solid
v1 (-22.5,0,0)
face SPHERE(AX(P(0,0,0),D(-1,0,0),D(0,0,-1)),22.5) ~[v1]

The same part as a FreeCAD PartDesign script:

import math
import FreeCAD as App
import Part
import Sketcher
from FreeCAD import Vector

doc = App.newDocument("Part")
body = doc.addObject("PartDesign::Body", "Body")

sketch1 = body.newObject("Sketcher::SketchObject", "Sketch")
sketch1.AttachmentSupport = (doc.getObject("XZ_Plane"), [""])
sketch1.MapMode = "FlatFace"
sketch1.addGeometry([
    Part.LineSegment(Vector(-22, 0, 0), Vector(22, 0, 0)),
    Part.ArcOfCircle(Part.Circle(Vector(0, 0, 0), Vector(0, 0, 1), 22), math.radians(180), math.radians(360)),
], False)
sketch1.addConstraint([
    Sketcher.Constraint("Coincident", 0, 1, 1, 1),
    Sketcher.Constraint("Coincident", 1, 2, 0, 2),
    Sketcher.Constraint("Horizontal", 0),
    Sketcher.Constraint("Coincident", 1, 3, -1, 1),
    Sketcher.Constraint("PointOnObject", 0, 1, -1),
    Sketcher.Constraint("Radius", 1, 22.5),
])
revolution = body.newObject("PartDesign::Revolution", "Revolution")
revolution.Profile = sketch1
revolution.ReferenceAxis = (sketch1, ["H_Axis"])
revolution.Angle = 360

doc.recompute()
